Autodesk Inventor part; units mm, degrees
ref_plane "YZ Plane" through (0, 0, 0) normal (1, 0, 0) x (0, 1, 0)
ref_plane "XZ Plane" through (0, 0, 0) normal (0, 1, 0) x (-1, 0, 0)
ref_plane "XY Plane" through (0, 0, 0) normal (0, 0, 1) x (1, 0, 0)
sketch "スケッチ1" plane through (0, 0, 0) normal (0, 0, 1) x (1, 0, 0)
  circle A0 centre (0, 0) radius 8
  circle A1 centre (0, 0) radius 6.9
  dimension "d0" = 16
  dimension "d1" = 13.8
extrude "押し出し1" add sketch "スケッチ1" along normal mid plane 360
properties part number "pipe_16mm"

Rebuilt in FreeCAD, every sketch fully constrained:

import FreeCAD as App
import Part
import Sketcher
from FreeCAD import Vector

doc = App.newDocument("Part")
params = doc.addObject("Spreadsheet::Sheet", "Params")
for row, (alias, value) in enumerate([
    ("sketch1_diameter", "16 mm"),
    ("sketch1_diameter2", "13.8 mm"),
    ("pad1_length", "360 mm"),
], start=1):
    params.set(f"A{row}", alias)
    params.set(f"B{row}", "=" + value)
    params.setAlias(f"B{row}", alias)

body = doc.addObject("PartDesign::Body", "Body")

sketch1 = body.newObject("Sketcher::SketchObject", "Sketch")
sketch1.AttachmentSupport = (doc.getObject("XY_Plane"), [""])
sketch1.MapMode = "FlatFace"
sketch1.addGeometry([
    Part.Circle(Vector(0, 0, 0), Vector(0, 0, 1), 8),
    Part.Circle(Vector(0, 0, 0), Vector(0, 0, 1), 7),
], False)
sketch1.addConstraint([
    Sketcher.Constraint("Coincident", 0, 3, -1, 1),
    Sketcher.Constraint("Coincident", 1, 3, -1, 1),
    Sketcher.Constraint("Diameter", 0, 16.0),
    Sketcher.Constraint("Diameter", 1, 13.8),
])
sketch1.setExpression("Constraints[2]", "Params.sketch1_diameter")
sketch1.setExpression("Constraints[3]", "Params.sketch1_diameter2")
pad1 = body.newObject("PartDesign::Pad", "Pad")
pad1.Profile = sketch1
pad1.setExpression("Length", "Params.pad1_length")
pad1.Midplane = True

doc.recompute()
